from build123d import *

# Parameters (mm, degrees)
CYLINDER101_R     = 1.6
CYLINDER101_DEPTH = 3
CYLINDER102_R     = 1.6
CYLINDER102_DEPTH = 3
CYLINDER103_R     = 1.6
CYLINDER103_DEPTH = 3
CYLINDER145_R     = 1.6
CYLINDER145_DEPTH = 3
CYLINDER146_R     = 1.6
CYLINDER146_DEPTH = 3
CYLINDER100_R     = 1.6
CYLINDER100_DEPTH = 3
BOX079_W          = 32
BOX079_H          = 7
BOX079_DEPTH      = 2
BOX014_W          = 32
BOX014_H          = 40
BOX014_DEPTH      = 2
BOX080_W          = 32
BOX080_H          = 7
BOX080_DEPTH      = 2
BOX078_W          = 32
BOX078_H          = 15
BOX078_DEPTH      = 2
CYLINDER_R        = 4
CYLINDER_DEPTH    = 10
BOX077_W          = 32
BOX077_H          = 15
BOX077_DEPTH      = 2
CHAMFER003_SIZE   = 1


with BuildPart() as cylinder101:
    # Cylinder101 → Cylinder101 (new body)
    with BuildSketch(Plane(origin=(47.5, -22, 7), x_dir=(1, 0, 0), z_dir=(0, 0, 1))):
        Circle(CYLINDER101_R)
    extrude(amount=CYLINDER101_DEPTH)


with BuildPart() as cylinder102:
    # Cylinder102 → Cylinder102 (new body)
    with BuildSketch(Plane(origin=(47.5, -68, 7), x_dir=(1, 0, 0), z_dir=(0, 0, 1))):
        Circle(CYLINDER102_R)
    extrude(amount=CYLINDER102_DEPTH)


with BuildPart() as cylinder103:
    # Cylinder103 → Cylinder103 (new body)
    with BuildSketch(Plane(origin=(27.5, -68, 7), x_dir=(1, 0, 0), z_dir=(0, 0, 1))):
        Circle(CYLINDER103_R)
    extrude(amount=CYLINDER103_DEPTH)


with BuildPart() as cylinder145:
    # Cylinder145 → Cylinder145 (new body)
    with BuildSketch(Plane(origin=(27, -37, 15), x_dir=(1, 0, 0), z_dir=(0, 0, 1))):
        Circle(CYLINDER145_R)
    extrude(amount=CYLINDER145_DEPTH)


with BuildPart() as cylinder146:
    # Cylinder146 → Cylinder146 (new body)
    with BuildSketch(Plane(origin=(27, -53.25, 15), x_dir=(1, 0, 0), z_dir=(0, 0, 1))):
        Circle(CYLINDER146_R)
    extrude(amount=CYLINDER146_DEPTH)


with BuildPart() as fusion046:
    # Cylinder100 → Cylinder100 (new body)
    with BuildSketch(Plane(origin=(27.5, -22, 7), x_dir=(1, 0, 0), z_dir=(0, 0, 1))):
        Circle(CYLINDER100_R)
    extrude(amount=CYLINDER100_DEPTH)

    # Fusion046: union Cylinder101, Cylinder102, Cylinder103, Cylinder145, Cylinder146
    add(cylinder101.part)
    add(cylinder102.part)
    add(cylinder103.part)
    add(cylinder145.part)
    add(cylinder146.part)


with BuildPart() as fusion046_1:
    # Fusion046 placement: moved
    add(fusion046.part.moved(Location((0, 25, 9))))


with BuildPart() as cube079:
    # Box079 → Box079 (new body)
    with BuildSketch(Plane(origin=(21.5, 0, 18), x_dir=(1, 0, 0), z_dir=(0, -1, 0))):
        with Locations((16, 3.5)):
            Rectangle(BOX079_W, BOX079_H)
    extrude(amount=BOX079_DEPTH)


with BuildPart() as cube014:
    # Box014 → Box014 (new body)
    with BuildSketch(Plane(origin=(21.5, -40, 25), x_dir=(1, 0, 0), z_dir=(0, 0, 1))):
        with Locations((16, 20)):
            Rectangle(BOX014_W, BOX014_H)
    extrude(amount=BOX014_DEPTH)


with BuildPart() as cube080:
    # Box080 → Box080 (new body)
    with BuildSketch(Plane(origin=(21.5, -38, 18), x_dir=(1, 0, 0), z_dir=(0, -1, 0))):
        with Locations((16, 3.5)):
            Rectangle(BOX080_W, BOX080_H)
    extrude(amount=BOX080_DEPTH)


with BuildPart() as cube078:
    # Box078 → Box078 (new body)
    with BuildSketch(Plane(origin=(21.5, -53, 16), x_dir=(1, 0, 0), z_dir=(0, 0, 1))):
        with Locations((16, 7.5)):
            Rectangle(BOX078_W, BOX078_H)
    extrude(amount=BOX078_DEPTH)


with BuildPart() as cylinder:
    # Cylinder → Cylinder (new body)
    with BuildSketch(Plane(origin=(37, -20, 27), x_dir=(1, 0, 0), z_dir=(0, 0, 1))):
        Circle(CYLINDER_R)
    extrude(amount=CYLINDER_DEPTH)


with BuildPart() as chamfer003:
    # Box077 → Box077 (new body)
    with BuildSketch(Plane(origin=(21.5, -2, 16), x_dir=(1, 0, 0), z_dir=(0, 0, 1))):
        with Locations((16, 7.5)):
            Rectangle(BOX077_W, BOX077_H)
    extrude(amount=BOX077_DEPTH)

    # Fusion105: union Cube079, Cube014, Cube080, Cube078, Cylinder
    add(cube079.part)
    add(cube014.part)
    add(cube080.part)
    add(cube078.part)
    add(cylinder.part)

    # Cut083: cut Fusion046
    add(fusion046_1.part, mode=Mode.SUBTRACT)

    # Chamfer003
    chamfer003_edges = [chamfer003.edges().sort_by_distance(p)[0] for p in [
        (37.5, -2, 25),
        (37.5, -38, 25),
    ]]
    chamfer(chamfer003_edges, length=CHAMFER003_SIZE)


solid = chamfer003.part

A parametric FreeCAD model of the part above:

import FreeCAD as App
import Part
import Sketcher
from FreeCAD import Vector
Q = App.Units.Quantity


def edges_at(feature, points):
    """Names of the edges that pass closest to the given points."""
    edges = feature.Shape.Edges
    near = lambda p: min(range(len(edges)), key=lambda i: edges[i].distToShape(Part.Vertex(*p))[0])
    return sorted({f"Edge{near(p) + 1}" for p in points})

doc = App.newDocument("Part")
body = doc.addObject("PartDesign::Body", "Body")

sketch1 = doc.addObject("Sketcher::SketchObject", "Sketch")
body.addObject(sketch1)
sketch1.AttachmentSupport = (doc.XY_Plane, [""])
sketch1.MapMode = "FlatFace"
sketch1.AttachmentOffset = App.Placement(Vector(0, 0, 7), App.Rotation())
sketch1.addGeometry(Part.Circle(Vector(47.5, -22, 0), Vector(0, 0, 1), 1.6), False)
sketch1.addConstraint(Sketcher.Constraint("Diameter", 0, Q("3.2 mm")))
sketch1.addConstraint(Sketcher.Constraint("DistanceY", 0, 3, -1, 1, Q("22 mm")))
sketch1.addConstraint(Sketcher.Constraint("DistanceX", -1, 1, 0, 3, Q("47.5 mm")))
pad1 = doc.addObject("PartDesign::Pad", "Pad")
body.addObject(pad1)
pad1.Profile = sketch1
pad1.Length = 3
body2 = doc.addObject("PartDesign::Body", "Body001")

sketch2 = doc.addObject("Sketcher::SketchObject", "Sketch001")
body2.addObject(sketch2)
sketch2.AttachmentSupport = (doc.getObject("XY_Plane001"), [""])
sketch2.MapMode = "FlatFace"
sketch2.AttachmentOffset = App.Placement(Vector(0, 0, 7), App.Rotation())
sketch2.addGeometry(Part.Circle(Vector(47.5, -68, 0), Vector(0, 0, 1), 1.6), False)
sketch2.addConstraint(Sketcher.Constraint("Diameter", 0, Q("3.2 mm")))
sketch2.addConstraint(Sketcher.Constraint("DistanceY", 0, 3, -1, 1, Q("68 mm")))
sketch2.addConstraint(Sketcher.Constraint("DistanceX", -1, 1, 0, 3, Q("47.5 mm")))
pad2 = doc.addObject("PartDesign::Pad", "Pad001")
body2.addObject(pad2)
pad2.Profile = sketch2
pad2.Length = 3
body3 = doc.addObject("PartDesign::Body", "Body002")

sketch3 = doc.addObject("Sketcher::SketchObject", "Sketch002")
body3.addObject(sketch3)
sketch3.AttachmentSupport = (doc.getObject("XY_Plane002"), [""])
sketch3.MapMode = "FlatFace"
sketch3.AttachmentOffset = App.Placement(Vector(0, 0, 7), App.Rotation())
sketch3.addGeometry(Part.Circle(Vector(27.5, -68, 0), Vector(0, 0, 1), 1.6), False)
sketch3.addConstraint(Sketcher.Constraint("Diameter", 0, Q("3.2 mm")))
sketch3.addConstraint(Sketcher.Constraint("DistanceY", 0, 3, -1, 1, Q("68 mm")))
sketch3.addConstraint(Sketcher.Constraint("DistanceX", -1, 1, 0, 3, Q("27.5 mm")))
pad3 = doc.addObject("PartDesign::Pad", "Pad002")
body3.addObject(pad3)
pad3.Profile = sketch3
pad3.Length = 3
body4 = doc.addObject("PartDesign::Body", "Body003")

sketch4 = doc.addObject("Sketcher::SketchObject", "Sketch003")
body4.addObject(sketch4)
sketch4.AttachmentSupport = (doc.getObject("XY_Plane003"), [""])
sketch4.MapMode = "FlatFace"
sketch4.AttachmentOffset = App.Placement(Vector(0, 0, 15), App.Rotation())
sketch4.addGeometry(Part.Circle(Vector(27, -37, 0), Vector(0, 0, 1), 1.6), False)
sketch4.addConstraint(Sketcher.Constraint("Diameter", 0, Q("3.2 mm")))
sketch4.addConstraint(Sketcher.Constraint("DistanceX", -1, 1, 0, 3, Q("27 mm")))
sketch4.addConstraint(Sketcher.Constraint("DistanceY", 0, 3, -1, 1, Q("37 mm")))
pad4 = doc.addObject("PartDesign::Pad", "Pad003")
body4.addObject(pad4)
pad4.Profile = sketch4
pad4.Length = 3
body5 = doc.addObject("PartDesign::Body", "Body004")

sketch5 = doc.addObject("Sketcher::SketchObject", "Sketch004")
body5.addObject(sketch5)
sketch5.AttachmentSupport = (doc.getObject("XY_Plane004"), [""])
sketch5.MapMode = "FlatFace"
sketch5.AttachmentOffset = App.Placement(Vector(0, 0, 15), App.Rotation())
sketch5.addGeometry(Part.Circle(Vector(27, -53.25, 0), Vector(0, 0, 1), 1.6), False)
sketch5.addConstraint(Sketcher.Constraint("Diameter", 0, Q("3.2 mm")))
sketch5.addConstraint(Sketcher.Constraint("DistanceX", -1, 1, 0, 3, Q("27 mm")))
sketch5.addConstraint(Sketcher.Constraint("DistanceY", 0, 3, -1, 1, Q("53.25 mm")))
pad5 = doc.addObject("PartDesign::Pad", "Pad004")
body5.addObject(pad5)
pad5.Profile = sketch5
pad5.Length = 3
body6 = doc.addObject("PartDesign::Body", "Body005")
body6.AllowCompound = True

sketch6 = doc.addObject("Sketcher::SketchObject", "Sketch005")
body6.addObject(sketch6)
sketch6.AttachmentSupport = (doc.getObject("XY_Plane005"), [""])
sketch6.MapMode = "FlatFace"
sketch6.AttachmentOffset = App.Placement(Vector(0, 0, 7), App.Rotation())
sketch6.addGeometry(Part.Circle(Vector(27.5, -22, 0), Vector(0, 0, 1), 1.6), False)
sketch6.addConstraint(Sketcher.Constraint("Diameter", 0, Q("3.2 mm")))
sketch6.addConstraint(Sketcher.Constraint("DistanceY", 0, 3, -1, 1, Q("22 mm")))
sketch6.addConstraint(Sketcher.Constraint("DistanceX", -1, 1, 0, 3, Q("27.5 mm")))
pad6 = doc.addObject("PartDesign::Pad", "Pad005")
body6.addObject(pad6)
pad6.Profile = sketch6
pad6.Length = 3
doc.recompute()

boolean = doc.addObject("PartDesign::Boolean", "Boolean")
body6.addObject(boolean)
boolean.Type = "Fuse"
boolean.addObjects([body])
doc.recompute()

boolean2 = doc.addObject("PartDesign::Boolean", "Boolean001")
body6.addObject(boolean2)
boolean2.Type = "Fuse"
boolean2.addObjects([body2])
doc.recompute()

boolean3 = doc.addObject("PartDesign::Boolean", "Boolean002")
body6.addObject(boolean3)
boolean3.Type = "Fuse"
boolean3.addObjects([body3])
doc.recompute()

boolean4 = doc.addObject("PartDesign::Boolean", "Boolean003")
body6.addObject(boolean4)
boolean4.Type = "Fuse"
boolean4.addObjects([body4])
doc.recompute()

boolean5 = doc.addObject("PartDesign::Boolean", "Boolean004")
body6.addObject(boolean5)
boolean5.Type = "Fuse"
boolean5.addObjects([body5])
body7 = doc.addObject("PartDesign::Body", "Body006")
body7.AllowCompound = True
doc.recompute()

body6.Placement = App.Placement(Vector(0, 25, 9), App.Rotation(Vector(0, 0, 1), 0))
boolean6 = doc.addObject("PartDesign::Boolean", "Boolean005")
body7.addObject(boolean6)
boolean6.Type = "Fuse"
boolean6.addObjects([body6])
body8 = doc.addObject("PartDesign::Body", "Body007")

sketch7 = doc.addObject("Sketcher::SketchObject", "Sketch006")
body8.addObject(sketch7)
sketch7.AttachmentSupport = (doc.getObject("XZ_Plane007"), [""])
sketch7.MapMode = "FlatFace"
sketch7.addGeometry(Part.LineSegment(Vector(21.5, 25, 0), Vector(21.5, 18, 0)), False)
sketch7.addGeometry(Part.LineSegment(Vector(21.5, 18, 0), Vector(53.5, 18, 0)), False)
sketch7.addGeometry(Part.LineSegment(Vector(53.5, 18, 0), Vector(53.5, 25, 0)), False)
sketch7.addGeometry(Part.LineSegment(Vector(53.5, 25, 0), Vector(21.5, 25, 0)), False)
sketch7.addConstraint(Sketcher.Constraint("Coincident", 0, 2, 1, 1))
sketch7.addConstraint(Sketcher.Constraint("Coincident", 1, 2, 2, 1))
sketch7.addConstraint(Sketcher.Constraint("Coincident", 2, 2, 3, 1))
sketch7.addConstraint(Sketcher.Constraint("Coincident", 3, 2, 0, 1))
sketch7.addConstraint(Sketcher.Constraint("Vertical", 0))
sketch7.addConstraint(Sketcher.Constraint("Horizontal", 1))
sketch7.addConstraint(Sketcher.Constraint("Vertical", 2))
sketch7.addConstraint(Sketcher.Constraint("Horizontal", 3))
sketch7.addConstraint(Sketcher.Constraint("DistanceX", 1, 1, 1, 2, Q("32 mm")))
sketch7.addConstraint(Sketcher.Constraint("DistanceY", 0, 2, 0, 1, Q("7 mm")))
sketch7.addConstraint(Sketcher.Constraint("DistanceY", -1, 1, 0, 2, Q("18 mm")))
sketch7.addConstraint(Sketcher.Constraint("DistanceX", -1, 1, 0, 2, Q("21.5 mm")))
pad7 = doc.addObject("PartDesign::Pad", "Pad006")
body8.addObject(pad7)
pad7.Profile = sketch7
pad7.Length = 2
body9 = doc.addObject("PartDesign::Body", "Body008")

sketch8 = doc.addObject("Sketcher::SketchObject", "Sketch007")
body9.addObject(sketch8)
sketch8.AttachmentSupport = (doc.getObject("XY_Plane008"), [""])
sketch8.MapMode = "FlatFace"
sketch8.AttachmentOffset = App.Placement(Vector(0, 0, 25), App.Rotation())
sketch8.addGeometry(Part.LineSegment(Vector(21.5, 0, 0), Vector(21.5, -40, 0)), False)
sketch8.addGeometry(Part.LineSegment(Vector(21.5, -40, 0), Vector(53.5, -40, 0)), False)
sketch8.addGeometry(Part.LineSegment(Vector(53.5, -40, 0), Vector(53.5, 0, 0)), False)
sketch8.addGeometry(Part.LineSegment(Vector(53.5, 0, 0), Vector(21.5, 0, 0)), False)
sketch8.addConstraint(Sketcher.Constraint("Coincident", 0, 2, 1, 1))
sketch8.addConstraint(Sketcher.Constraint("Coincident", 1, 2, 2, 1))
sketch8.addConstraint(Sketcher.Constraint("Coincident", 2, 2, 3, 1))
sketch8.addConstraint(Sketcher.Constraint("Coincident", 3, 2, 0, 1))
sketch8.addConstraint(Sketcher.Constraint("Vertical", 0))
sketch8.addConstraint(Sketcher.Constraint("Horizontal", 1))
sketch8.addConstraint(Sketcher.Constraint("Vertical", 2))
sketch8.addConstraint(Sketcher.Constraint("Horizontal", 3))
sketch8.addConstraint(Sketcher.Constraint("PointOnObject", 2, 2, -1))
sketch8.addConstraint(Sketcher.Constraint("DistanceX", 1, 1, 1, 2, Q("32 mm")))
sketch8.addConstraint(Sketcher.Constraint("DistanceY", 0, 2, 0, 1, Q("40 mm")))
sketch8.addConstraint(Sketcher.Constraint("DistanceX", -1, 1, 0, 2, Q("21.5 mm")))
pad8 = doc.addObject("PartDesign::Pad", "Pad007")
body9.addObject(pad8)
pad8.Profile = sketch8
pad8.Length = 2
body10 = doc.addObject("PartDesign::Body", "Body009")

sketch9 = doc.addObject("Sketcher::SketchObject", "Sketch008")
body10.addObject(sketch9)
sketch9.AttachmentSupport = (doc.getObject("XZ_Plane009"), [""])
sketch9.MapMode = "FlatFace"
sketch9.AttachmentOffset = App.Placement(Vector(0, 0, 38), App.Rotation())
sketch9.addGeometry(Part.LineSegment(Vector(21.5, 25, 0), Vector(21.5, 18, 0)), False)
sketch9.addGeometry(Part.LineSegment(Vector(21.5, 18, 0), Vector(53.5, 18, 0)), False)
sketch9.addGeometry(Part.LineSegment(Vector(53.5, 18, 0), Vector(53.5, 25, 0)), False)
sketch9.addGeometry(Part.LineSegment(Vector(53.5, 25, 0), Vector(21.5, 25, 0)), False)
sketch9.addConstraint(Sketcher.Constraint("Coincident", 0, 2, 1, 1))
sketch9.addConstraint(Sketcher.Constraint("Coincident", 1, 2, 2, 1))
sketch9.addConstraint(Sketcher.Constraint("Coincident", 2, 2, 3, 1))
sketch9.addConstraint(Sketcher.Constraint("Coincident", 3, 2, 0, 1))
sketch9.addConstraint(Sketcher.Constraint("Vertical", 0))
sketch9.addConstraint(Sketcher.Constraint("Horizontal", 1))
sketch9.addConstraint(Sketcher.Constraint("Vertical", 2))
sketch9.addConstraint(Sketcher.Constraint("Horizontal", 3))
sketch9.addConstraint(Sketcher.Constraint("DistanceX", 1, 1, 1, 2, Q("32 mm")))
sketch9.addConstraint(Sketcher.Constraint("DistanceY", 0, 2, 0, 1, Q("7 mm")))
sketch9.addConstraint(Sketcher.Constraint("DistanceY", -1, 1, 0, 2, Q("18 mm")))
sketch9.addConstraint(Sketcher.Constraint("DistanceX", -1, 1, 0, 2, Q("21.5 mm")))
pad9 = doc.addObject("PartDesign::Pad", "Pad008")
body10.addObject(pad9)
pad9.Profile = sketch9
pad9.Length = 2
body11 = doc.addObject("PartDesign::Body", "Body010")

sketch10 = doc.addObject("Sketcher::SketchObject", "Sketch009")
body11.addObject(sketch10)
sketch10.AttachmentSupport = (doc.getObject("XY_Plane010"), [""])
sketch10.MapMode = "FlatFace"
sketch10.AttachmentOffset = App.Placement(Vector(0, 0, 16), App.Rotation())
sketch10.addGeometry(Part.LineSegment(Vector(21.5, -38, 0), Vector(21.5, -53, 0)), False)
sketch10.addGeometry(Part.LineSegment(Vector(21.5, -53, 0), Vector(53.5, -53, 0)), False)
sketch10.addGeometry(Part.LineSegment(Vector(53.5, -53, 0), Vector(53.5, -38, 0)), False)
sketch10.addGeometry(Part.LineSegment(Vector(53.5, -38, 0), Vector(21.5, -38, 0)), False)
sketch10.addConstraint(Sketcher.Constraint("Coincident", 0, 2, 1, 1))
sketch10.addConstraint(Sketcher.Constraint("Coincident", 1, 2, 2, 1))
sketch10.addConstraint(Sketcher.Constraint("Coincident", 2, 2, 3, 1))
sketch10.addConstraint(Sketcher.Constraint("Coincident", 3, 2, 0, 1))
sketch10.addConstraint(Sketcher.Constraint("Vertical", 0))
sketch10.addConstraint(Sketcher.Constraint("Horizontal", 1))
sketch10.addConstraint(Sketcher.Constraint("Vertical", 2))
sketch10.addConstraint(Sketcher.Constraint("Horizontal", 3))
sketch10.addConstraint(Sketcher.Constraint("DistanceX", 1, 1, 1, 2, Q("32 mm")))
sketch10.addConstraint(Sketcher.Constraint("DistanceY", 0, 2, 0, 1, Q("15 mm")))
sketch10.addConstraint(Sketcher.Constraint("DistanceY", 0, 2, -1, 1, Q("53 mm")))
sketch10.addConstraint(Sketcher.Constraint("DistanceX", -1, 1, 0, 2, Q("21.5 mm")))
pad10 = doc.addObject("PartDesign::Pad", "Pad009")
body11.addObject(pad10)
pad10.Profile = sketch10
pad10.Length = 2
body12 = doc.addObject("PartDesign::Body", "Body011")

sketch11 = doc.addObject("Sketcher::SketchObject", "Sketch010")
body12.addObject(sketch11)
sketch11.AttachmentSupport = (doc.getObject("XY_Plane011"), [""])
sketch11.MapMode = "FlatFace"
sketch11.AttachmentOffset = App.Placement(Vector(0, 0, 27), App.Rotation())
sketch11.addGeometry(Part.Circle(Vector(37, -20, 0), Vector(0, 0, 1), 4), False)
sketch11.addConstraint(Sketcher.Constraint("Diameter", 0, Q("8 mm")))
sketch11.addConstraint(Sketcher.Constraint("DistanceX", -1, 1, 0, 3, Q("37 mm")))
sketch11.addConstraint(Sketcher.Constraint("DistanceY", 0, 3, -1, 1, Q("20 mm")))
pad11 = doc.addObject("PartDesign::Pad", "Pad010")
body12.addObject(pad11)
pad11.Profile = sketch11
pad11.Length = 10
body13 = doc.addObject("PartDesign::Body", "Body012")

sketch12 = doc.addObject("Sketcher::SketchObject", "Sketch011")
body13.addObject(sketch12)
sketch12.AttachmentSupport = (doc.getObject("XY_Plane012"), [""])
sketch12.MapMode = "FlatFace"
sketch12.AttachmentOffset = App.Placement(Vector(0, 0, 16), App.Rotation())
sketch12.addGeometry(Part.LineSegment(Vector(21.5, 13, 0), Vector(21.5, -2, 0)), False)
sketch12.addGeometry(Part.LineSegment(Vector(21.5, -2, 0), Vector(53.5, -2, 0)), False)
sketch12.addGeometry(Part.LineSegment(Vector(53.5, -2, 0), Vector(53.5, 13, 0)), False)
sketch12.addGeometry(Part.LineSegment(Vector(53.5, 13, 0), Vector(21.5, 13, 0)), False)
sketch12.addConstraint(Sketcher.Constraint("Coincident", 0, 2, 1, 1))
sketch12.addConstraint(Sketcher.Constraint("Coincident", 1, 2, 2, 1))
sketch12.addConstraint(Sketcher.Constraint("Coincident", 2, 2, 3, 1))
sketch12.addConstraint(Sketcher.Constraint("Coincident", 3, 2, 0, 1))
sketch12.addConstraint(Sketcher.Constraint("Vertical", 0))
sketch12.addConstraint(Sketcher.Constraint("Horizontal", 1))
sketch12.addConstraint(Sketcher.Constraint("Vertical", 2))
sketch12.addConstraint(Sketcher.Constraint("Horizontal", 3))
sketch12.addConstraint(Sketcher.Constraint("DistanceX", 1, 1, 1, 2, Q("32 mm")))
sketch12.addConstraint(Sketcher.Constraint("DistanceY", 0, 2, 0, 1, Q("15 mm")))
sketch12.addConstraint(Sketcher.Constraint("DistanceY", 0, 2, -1, 1, Q("2 mm")))
sketch12.addConstraint(Sketcher.Constraint("DistanceX", -1, 1, 0, 2, Q("21.5 mm")))
pad12 = doc.addObject("PartDesign::Pad", "Pad011")
body13.addObject(pad12)
pad12.Profile = sketch12
pad12.Length = 2
doc.recompute()

boolean7 = doc.addObject("PartDesign::Boolean", "Boolean006")
body13.addObject(boolean7)
boolean7.Type = "Fuse"
boolean7.addObjects([body8])
doc.recompute()

boolean8 = doc.addObject("PartDesign::Boolean", "Boolean007")
body13.addObject(boolean8)
boolean8.Type = "Fuse"
boolean8.addObjects([body9])
doc.recompute()

boolean9 = doc.addObject("PartDesign::Boolean", "Boolean008")
body13.addObject(boolean9)
boolean9.Type = "Fuse"
boolean9.addObjects([body10])
doc.recompute()

boolean10 = doc.addObject("PartDesign::Boolean", "Boolean009")
body13.addObject(boolean10)
boolean10.Type = "Fuse"
boolean10.addObjects([body11])
doc.recompute()

boolean11 = doc.addObject("PartDesign::Boolean", "Boolean010")
body13.addObject(boolean11)
boolean11.Type = "Fuse"
boolean11.addObjects([body12])
doc.recompute()

boolean12 = doc.addObject("PartDesign::Boolean", "Boolean011")
body13.addObject(boolean12)
boolean12.Type = "Cut"
boolean12.addObjects([body7])
doc.recompute()

chamfer = doc.addObject("PartDesign::Chamfer", "Chamfer")
body13.addObject(chamfer)
chamfer.Base = (boolean12, edges_at(boolean12, [(37.5, -2, 25), (37.5, -38, 25)]))
chamfer.Size = 1

doc.recompute()
